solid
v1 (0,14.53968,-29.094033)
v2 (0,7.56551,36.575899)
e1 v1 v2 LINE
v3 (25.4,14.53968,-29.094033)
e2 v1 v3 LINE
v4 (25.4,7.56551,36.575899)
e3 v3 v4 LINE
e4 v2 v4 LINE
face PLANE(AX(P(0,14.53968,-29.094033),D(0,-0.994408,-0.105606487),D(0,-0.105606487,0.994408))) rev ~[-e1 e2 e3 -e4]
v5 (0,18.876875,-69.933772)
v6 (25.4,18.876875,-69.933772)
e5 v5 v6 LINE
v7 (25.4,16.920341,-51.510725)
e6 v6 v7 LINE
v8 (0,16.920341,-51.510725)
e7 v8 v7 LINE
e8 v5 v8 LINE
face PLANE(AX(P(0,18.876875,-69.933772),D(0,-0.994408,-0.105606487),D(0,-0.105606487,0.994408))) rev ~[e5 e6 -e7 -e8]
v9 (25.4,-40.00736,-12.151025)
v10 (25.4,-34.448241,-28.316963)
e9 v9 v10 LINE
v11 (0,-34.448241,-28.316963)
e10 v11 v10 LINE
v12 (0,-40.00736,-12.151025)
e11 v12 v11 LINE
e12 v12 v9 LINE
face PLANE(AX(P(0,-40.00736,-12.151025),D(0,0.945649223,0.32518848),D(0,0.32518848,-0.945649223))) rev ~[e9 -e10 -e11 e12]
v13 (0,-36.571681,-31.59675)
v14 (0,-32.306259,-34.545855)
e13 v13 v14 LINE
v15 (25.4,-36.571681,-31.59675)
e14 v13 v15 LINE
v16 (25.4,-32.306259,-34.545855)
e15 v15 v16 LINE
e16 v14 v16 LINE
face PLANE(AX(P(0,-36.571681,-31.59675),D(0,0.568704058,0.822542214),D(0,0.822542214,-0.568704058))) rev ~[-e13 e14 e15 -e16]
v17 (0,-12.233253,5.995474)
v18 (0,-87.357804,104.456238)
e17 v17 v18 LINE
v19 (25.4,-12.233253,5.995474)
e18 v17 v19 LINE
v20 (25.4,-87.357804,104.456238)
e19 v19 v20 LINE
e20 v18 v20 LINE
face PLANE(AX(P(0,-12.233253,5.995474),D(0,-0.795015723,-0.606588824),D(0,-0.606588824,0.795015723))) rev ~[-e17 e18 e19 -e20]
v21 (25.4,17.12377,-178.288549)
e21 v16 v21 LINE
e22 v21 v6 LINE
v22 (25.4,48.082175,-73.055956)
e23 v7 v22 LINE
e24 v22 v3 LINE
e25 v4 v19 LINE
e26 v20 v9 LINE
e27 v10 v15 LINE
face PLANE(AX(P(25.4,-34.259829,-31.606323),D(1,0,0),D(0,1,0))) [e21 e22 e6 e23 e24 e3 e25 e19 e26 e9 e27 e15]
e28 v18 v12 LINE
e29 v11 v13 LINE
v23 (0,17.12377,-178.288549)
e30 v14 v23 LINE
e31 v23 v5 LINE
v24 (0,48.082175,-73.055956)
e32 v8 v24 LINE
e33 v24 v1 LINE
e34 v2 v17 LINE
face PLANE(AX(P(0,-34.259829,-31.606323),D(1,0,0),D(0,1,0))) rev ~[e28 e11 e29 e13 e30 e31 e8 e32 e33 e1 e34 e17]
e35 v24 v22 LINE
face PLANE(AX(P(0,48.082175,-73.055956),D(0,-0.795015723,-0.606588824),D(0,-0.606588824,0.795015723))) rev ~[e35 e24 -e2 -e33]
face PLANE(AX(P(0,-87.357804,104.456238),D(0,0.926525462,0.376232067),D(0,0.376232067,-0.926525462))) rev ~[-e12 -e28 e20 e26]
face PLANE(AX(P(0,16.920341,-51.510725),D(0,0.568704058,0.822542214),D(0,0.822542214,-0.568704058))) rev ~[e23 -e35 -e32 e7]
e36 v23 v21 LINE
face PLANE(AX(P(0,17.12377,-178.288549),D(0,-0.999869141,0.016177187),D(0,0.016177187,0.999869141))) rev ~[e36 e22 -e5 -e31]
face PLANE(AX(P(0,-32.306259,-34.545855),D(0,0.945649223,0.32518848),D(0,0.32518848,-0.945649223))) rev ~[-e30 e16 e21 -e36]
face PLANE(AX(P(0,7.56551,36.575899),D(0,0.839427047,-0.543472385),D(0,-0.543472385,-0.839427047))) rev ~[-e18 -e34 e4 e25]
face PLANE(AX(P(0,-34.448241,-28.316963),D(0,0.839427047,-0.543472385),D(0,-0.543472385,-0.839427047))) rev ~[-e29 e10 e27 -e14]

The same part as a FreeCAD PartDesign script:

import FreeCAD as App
import Part
import Sketcher

V = App.Vector
Q = App.Units.Quantity


def add_polygon(sketch, points):
    """Adds a closed chain of lines whose ends are joined by coincident constraints."""
    first, n = sketch.GeometryCount, len(points)
    for a, b in zip(points, points[1:] + points[:1]):
        sketch.addGeometry(Part.LineSegment(App.Vector(*a, 0), App.Vector(*b, 0)), False)
    for i in range(n):
        sketch.addConstraint(Sketcher.Constraint("Coincident", first + i, 2, first + (i + 1) % n, 1))

doc = App.newDocument("Part")
body = doc.addObject("PartDesign::Body", "Body")

# Sketch on YZ plane
sketch1 = body.newObject("Sketcher::SketchObject", "Sketch")
sketch1.AttachmentSupport = (doc.getObject("YZ_Plane"), [""])
sketch1.MapMode = "FlatFace"
add_polygon(sketch1, [(-34.448241, -28.316963), (-36.571681, -31.59675), (-32.306259, -34.545855), (17.12377, -178.288549), (18.876875, -69.933772), (16.920341, -51.510725), (48.082175, -73.055956), (14.53968, -29.094033), (7.56551, 36.575899), (-12.233253, 5.995474), (-87.357804, 104.456238), (-40.00736, -12.151025)])  # lines 0-11
sketch1.addConstraint([
    Sketcher.Constraint("DistanceX", 1, 2, -1, 1, Q("1.2719 in")),
    Sketcher.Constraint("DistanceX", 0, 2, 11, 2, Q("0.0836 in")),
    Sketcher.Constraint("DistanceY", -1, 1, 7, 2, Q("36.575899 mm")),
    Sketcher.Constraint("DistanceY", 2, 2, 0, 2, Q("146.691799 mm")),
    Sketcher.Constraint("DistanceX", 1, 2, 4, 2, Q("49.226599 mm")),
    Sketcher.Constraint("DistanceX", 3, 2, 5, 2, Q("29.2053 mm")),
    Sketcher.Constraint("DistanceY", 5, 2, 1, 2, Q("38.510101 mm")),
    Sketcher.Constraint("DistanceY", 4, 2, 8, 2, Q("57.506198 mm")),
    Sketcher.Constraint("DistanceX", 10, 2, 1, 2, Q("7.701101 mm")),
    Sketcher.Constraint("DistanceY", 10, 2, 8, 2, Q("18.146499 mm")),
    Sketcher.Constraint("Distance", 1, Q("5.185658 mm")),
    Sketcher.Constraint("Distance", 3, Q("108.368958 mm")),
    Sketcher.Constraint("Distance", 4, Q("18.526648 mm")),
    Sketcher.Constraint("Distance", 9, Q("123.847569 mm")),
    Sketcher.Constraint("Distance", 11, Q("17.095068 mm")),
    Sketcher.Constraint("DistanceX", 0, 2, -1, 1, Q("36.571681 mm")),
    Sketcher.Constraint("DistanceY", 0, 2, -1, 1, Q("31.59675 mm")),
    Sketcher.Constraint("DistanceX", -1, 1, 2, 2, Q("17.12377 mm")),
    Sketcher.Constraint("DistanceX", -1, 1, 6, 2, Q("14.53968 mm")),
    Sketcher.Constraint("DistanceX", -1, 1, 7, 2, Q("7.56551 mm")),
    Sketcher.Constraint("DistanceY", -1, 1, 9, 2, Q("104.456238 mm")),
    Sketcher.Constraint("DistanceY", 4, 2, 1, 2, Q("16.96487 mm")),
    Sketcher.Constraint("DistanceY", 3, 2, 6, 2, Q("40.839739 mm")),
    Sketcher.Constraint("DistanceX", 0, 2, 8, 2, Q("24.338429 mm")),
])
pad1 = body.newObject("PartDesign::Pad", "Pad")
pad1.Profile = sketch1
pad1.Length = Q("1 in")

doc.recompute()
